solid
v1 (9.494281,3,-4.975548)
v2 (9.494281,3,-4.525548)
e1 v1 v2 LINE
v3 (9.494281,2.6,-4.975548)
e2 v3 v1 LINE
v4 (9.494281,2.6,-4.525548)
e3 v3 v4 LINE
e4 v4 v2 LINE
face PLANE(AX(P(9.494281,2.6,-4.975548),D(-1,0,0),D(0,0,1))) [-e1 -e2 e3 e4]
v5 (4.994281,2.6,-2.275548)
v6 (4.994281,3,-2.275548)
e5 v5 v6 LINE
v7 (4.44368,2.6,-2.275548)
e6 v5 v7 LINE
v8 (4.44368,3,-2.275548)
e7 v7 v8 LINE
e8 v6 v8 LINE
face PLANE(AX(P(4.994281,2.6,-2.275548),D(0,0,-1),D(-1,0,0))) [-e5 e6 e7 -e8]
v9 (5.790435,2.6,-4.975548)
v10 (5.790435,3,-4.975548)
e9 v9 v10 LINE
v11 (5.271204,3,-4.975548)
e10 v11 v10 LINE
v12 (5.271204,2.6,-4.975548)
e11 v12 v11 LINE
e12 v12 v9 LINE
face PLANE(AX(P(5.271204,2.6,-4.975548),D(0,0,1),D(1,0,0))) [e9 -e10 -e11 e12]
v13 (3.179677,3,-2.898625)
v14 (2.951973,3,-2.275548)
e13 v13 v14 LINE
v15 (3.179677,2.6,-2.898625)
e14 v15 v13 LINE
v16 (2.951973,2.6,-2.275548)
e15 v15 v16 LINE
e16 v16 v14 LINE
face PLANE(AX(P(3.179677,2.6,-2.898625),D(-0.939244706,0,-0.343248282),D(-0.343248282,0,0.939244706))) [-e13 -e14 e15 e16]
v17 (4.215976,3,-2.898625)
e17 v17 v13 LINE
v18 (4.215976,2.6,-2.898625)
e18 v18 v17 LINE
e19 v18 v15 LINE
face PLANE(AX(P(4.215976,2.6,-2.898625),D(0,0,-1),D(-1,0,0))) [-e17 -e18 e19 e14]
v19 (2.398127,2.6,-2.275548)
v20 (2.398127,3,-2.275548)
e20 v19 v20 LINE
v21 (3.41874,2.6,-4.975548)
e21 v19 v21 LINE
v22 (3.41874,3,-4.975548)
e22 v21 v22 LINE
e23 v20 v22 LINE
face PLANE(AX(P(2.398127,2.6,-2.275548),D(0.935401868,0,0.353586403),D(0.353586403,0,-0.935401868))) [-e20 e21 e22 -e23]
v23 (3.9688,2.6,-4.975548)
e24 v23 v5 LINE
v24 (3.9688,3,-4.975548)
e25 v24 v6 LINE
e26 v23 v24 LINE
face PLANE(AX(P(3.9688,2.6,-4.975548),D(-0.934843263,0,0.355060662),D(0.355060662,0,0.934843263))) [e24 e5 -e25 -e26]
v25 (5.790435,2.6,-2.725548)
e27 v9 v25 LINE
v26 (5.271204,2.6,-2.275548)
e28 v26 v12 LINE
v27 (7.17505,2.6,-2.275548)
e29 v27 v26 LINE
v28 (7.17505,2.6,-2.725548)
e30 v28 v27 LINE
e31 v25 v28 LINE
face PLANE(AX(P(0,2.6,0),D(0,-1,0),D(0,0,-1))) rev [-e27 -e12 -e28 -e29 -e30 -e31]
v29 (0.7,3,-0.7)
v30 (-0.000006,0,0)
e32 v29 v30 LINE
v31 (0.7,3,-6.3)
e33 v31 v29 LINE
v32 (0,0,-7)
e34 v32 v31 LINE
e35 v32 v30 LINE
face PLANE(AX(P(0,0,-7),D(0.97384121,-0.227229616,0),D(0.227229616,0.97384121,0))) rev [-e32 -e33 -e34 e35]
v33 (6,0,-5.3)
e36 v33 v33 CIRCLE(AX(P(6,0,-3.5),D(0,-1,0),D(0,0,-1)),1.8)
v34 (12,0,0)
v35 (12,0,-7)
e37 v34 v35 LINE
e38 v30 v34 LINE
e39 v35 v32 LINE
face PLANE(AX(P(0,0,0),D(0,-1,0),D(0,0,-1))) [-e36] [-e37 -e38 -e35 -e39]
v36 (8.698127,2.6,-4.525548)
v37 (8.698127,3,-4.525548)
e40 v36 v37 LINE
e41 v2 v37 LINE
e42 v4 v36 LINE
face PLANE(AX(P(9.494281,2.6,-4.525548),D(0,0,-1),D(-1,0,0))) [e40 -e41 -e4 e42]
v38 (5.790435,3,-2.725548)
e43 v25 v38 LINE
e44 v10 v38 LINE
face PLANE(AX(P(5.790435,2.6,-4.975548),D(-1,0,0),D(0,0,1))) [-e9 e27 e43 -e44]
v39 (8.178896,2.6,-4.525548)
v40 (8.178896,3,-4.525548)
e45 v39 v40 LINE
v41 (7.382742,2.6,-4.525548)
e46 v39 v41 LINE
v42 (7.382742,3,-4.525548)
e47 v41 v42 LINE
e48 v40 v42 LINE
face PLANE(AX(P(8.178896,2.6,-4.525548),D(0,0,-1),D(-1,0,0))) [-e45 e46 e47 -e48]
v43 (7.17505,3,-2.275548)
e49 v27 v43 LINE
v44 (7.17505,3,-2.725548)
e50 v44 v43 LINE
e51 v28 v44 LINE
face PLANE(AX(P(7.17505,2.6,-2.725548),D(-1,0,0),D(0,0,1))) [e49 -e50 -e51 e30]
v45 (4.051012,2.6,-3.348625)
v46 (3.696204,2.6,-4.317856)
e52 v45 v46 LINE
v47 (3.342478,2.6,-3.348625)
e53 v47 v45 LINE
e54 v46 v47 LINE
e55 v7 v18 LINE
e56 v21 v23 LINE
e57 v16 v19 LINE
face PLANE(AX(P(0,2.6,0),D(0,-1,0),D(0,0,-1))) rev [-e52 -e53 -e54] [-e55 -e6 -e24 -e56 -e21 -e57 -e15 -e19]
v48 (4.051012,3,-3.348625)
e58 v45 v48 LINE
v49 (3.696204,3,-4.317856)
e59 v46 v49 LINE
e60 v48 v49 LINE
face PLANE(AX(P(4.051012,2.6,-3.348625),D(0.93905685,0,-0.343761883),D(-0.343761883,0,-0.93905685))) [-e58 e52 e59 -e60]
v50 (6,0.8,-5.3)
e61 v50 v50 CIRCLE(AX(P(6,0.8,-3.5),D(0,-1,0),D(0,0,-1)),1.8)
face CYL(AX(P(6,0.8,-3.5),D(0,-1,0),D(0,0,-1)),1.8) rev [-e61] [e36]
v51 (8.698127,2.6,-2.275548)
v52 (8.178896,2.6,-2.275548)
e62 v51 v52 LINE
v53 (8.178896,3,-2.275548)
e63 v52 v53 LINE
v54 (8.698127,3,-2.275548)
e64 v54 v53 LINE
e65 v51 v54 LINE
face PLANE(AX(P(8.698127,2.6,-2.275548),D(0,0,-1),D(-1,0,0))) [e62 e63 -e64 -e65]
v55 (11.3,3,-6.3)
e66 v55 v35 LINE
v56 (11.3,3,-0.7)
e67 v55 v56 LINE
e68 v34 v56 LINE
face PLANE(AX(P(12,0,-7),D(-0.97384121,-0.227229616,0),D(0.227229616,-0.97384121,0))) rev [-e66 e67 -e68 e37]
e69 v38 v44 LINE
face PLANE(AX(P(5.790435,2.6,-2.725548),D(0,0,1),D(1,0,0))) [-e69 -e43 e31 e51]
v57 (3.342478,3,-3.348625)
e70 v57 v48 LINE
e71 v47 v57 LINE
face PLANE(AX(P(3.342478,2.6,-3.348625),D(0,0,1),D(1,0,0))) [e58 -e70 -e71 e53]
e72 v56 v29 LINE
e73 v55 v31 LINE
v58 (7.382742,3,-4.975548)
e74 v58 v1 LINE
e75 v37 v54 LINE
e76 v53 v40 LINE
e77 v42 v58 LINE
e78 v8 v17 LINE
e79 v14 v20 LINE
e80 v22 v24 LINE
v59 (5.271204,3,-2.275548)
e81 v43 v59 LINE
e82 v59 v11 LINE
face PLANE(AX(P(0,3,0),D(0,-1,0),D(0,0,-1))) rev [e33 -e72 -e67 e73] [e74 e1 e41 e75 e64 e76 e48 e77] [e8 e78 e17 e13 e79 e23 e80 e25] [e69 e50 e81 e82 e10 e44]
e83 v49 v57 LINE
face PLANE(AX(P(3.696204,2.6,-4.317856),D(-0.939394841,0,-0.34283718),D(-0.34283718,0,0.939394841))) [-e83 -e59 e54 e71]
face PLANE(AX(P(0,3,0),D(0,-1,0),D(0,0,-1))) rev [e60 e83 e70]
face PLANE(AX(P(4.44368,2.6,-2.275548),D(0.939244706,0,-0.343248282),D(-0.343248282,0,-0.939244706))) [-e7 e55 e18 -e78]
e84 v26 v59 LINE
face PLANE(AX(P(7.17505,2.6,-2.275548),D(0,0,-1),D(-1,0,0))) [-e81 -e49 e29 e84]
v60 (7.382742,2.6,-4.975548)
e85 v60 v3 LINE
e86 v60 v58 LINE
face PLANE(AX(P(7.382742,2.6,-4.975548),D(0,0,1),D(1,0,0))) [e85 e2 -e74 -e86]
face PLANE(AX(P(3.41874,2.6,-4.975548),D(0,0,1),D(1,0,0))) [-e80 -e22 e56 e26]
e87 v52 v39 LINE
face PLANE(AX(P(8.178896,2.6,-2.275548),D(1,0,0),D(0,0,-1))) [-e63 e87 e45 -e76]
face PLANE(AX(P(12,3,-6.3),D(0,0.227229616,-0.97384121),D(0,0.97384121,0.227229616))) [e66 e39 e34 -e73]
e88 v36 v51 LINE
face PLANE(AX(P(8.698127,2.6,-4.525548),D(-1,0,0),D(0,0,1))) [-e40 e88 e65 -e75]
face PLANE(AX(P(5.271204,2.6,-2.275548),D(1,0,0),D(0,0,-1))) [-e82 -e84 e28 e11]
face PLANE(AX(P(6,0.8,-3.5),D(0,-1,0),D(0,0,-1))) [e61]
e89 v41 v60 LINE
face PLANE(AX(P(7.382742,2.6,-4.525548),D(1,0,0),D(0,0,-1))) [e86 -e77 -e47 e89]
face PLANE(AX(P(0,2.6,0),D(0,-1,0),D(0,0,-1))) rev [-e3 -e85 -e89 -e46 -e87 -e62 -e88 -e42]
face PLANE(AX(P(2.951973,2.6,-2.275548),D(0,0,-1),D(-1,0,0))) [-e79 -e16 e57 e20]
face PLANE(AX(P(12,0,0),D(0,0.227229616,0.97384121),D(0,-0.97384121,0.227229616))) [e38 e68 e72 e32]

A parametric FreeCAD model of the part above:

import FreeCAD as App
import Part
import Sketcher


def add_polygon(sketch, points):
    """Adds a closed chain of lines whose ends are joined by coincident constraints."""
    first, n = sketch.GeometryCount, len(points)
    for a, b in zip(points, points[1:] + points[:1]):
        sketch.addGeometry(Part.LineSegment(App.Vector(*a, 0), App.Vector(*b, 0)), False)
    for i in range(n):
        sketch.addConstraint(Sketcher.Constraint("Coincident", first + i, 2, first + (i + 1) % n, 1))

doc = App.newDocument("Part")
params = doc.addObject("Spreadsheet::Sheet", "Params")
for row, (alias, value) in enumerate([
    ("sketch1_width", "12 mm"),
    ("sketch1_height", "7 mm"),
    ("pad1_length", "3 mm"),
    ("sketch2_height", "3 mm"),
    ("sketch2_width", "0.7 mm"),
    ("pocket1_length", "7 mm"),
    ("sketch3_width", "3 mm"),
    ("sketch3_height", "0.7 mm"),
    ("sketch4_diameter", "3.6 mm"),
    ("pocket3_length", "0.8 mm"),
    ("sketch5_height", "2.7 mm"),
    ("sketch5_height2", "0.45 mm"),
    ("pocket4_length", "0.4 mm"),
], start=1):
    params.set(f"A{row}", alias)
    params.set(f"B{row}", "=" + value)
    params.setAlias(f"B{row}", alias)

body = doc.addObject("PartDesign::Body", "Body")

# Sketch on XZ plane
sketch1 = doc.addObject("Sketcher::SketchObject", "Sketch")
body.addObject(sketch1)
sketch1.AttachmentSupport = (doc.XZ_Plane, [""])
sketch1.MapMode = "FlatFace"
add_polygon(sketch1, [(0, -7), (0, 0), (12, 0), (12, -7)])  # lines 0-3
sketch1.addConstraint([
    Sketcher.Constraint("Vertical", 0),
    Sketcher.Constraint("Horizontal", 1),
    Sketcher.Constraint("Vertical", 2),
    Sketcher.Constraint("Horizontal", 3),
    Sketcher.Constraint("Coincident", 0, 2, -1, 1),
    Sketcher.Constraint("DistanceX", 1, 1, 1, 2, 12.0),
    Sketcher.Constraint("DistanceY", 0, 1, 0, 2, 7.0),
])
sketch1.setExpression("Constraints[9]", "Params.sketch1_width")
sketch1.setExpression("Constraints[10]", "Params.sketch1_height")
pad1 = doc.addObject("PartDesign::Pad", "Pad")
body.addObject(pad1)
pad1.Profile = sketch1
pad1.setExpression("Length", "Params.pad1_length")
pad1.Reversed = True

# Sketch on XY plane
sketch2 = doc.addObject("Sketcher::SketchObject", "Sketch001")
body.addObject(sketch2)
sketch2.AttachmentSupport = (doc.XY_Plane, [""])
sketch2.MapMode = "FlatFace"
add_polygon(sketch2, [(0, 0), (0.7, 3), (0, 3)])  # lines 0-2
add_polygon(sketch2, [(11.3, 3), (12, 0), (12, 3)])  # lines 3-5
sketch2.addConstraint([
    Sketcher.Constraint("Horizontal", 1),
    Sketcher.Constraint("Vertical", 2),
    Sketcher.Constraint("Vertical", 4),
    Sketcher.Constraint("Horizontal", 5),
    Sketcher.Constraint("Coincident", 2, 2, -1, 1),
    Sketcher.Constraint("PointOnObject", 3, 2, -1),
    Sketcher.Constraint("Horizontal", 1, 2, 4, 2),
    Sketcher.Constraint("Equal", 1, 5),
    Sketcher.Constraint("DistanceY", 2, 2, 2, 1, 3.0),
    Sketcher.Constraint("DistanceX", 1, 2, 1, 1, 0.7),
    Sketcher.Constraint("DistanceX", -1, 1, 3, 2, 12.0),
])
sketch2.setExpression("Constraints[14]", "Params.sketch2_height")
sketch2.setExpression("Constraints[15]", "Params.sketch2_width")
pocket1 = doc.addObject("PartDesign::Pocket", "Pocket")
body.addObject(pocket1)
pocket1.Profile = sketch2
pocket1.setExpression("Length", "Params.pocket1_length")

# Sketch on YZ plane
sketch3 = doc.addObject("Sketcher::SketchObject", "Sketch002")
body.addObject(sketch3)
sketch3.AttachmentSupport = (doc.YZ_Plane, [""])
sketch3.MapMode = "FlatFace"
add_polygon(sketch3, [(0, 0), (3, -0.7), (3, 0)])  # lines 0-2
add_polygon(sketch3, [(3, -7), (3, -6.3), (0, -7)])  # lines 3-5
sketch3.addConstraint([
    Sketcher.Constraint("Vertical", 1),
    Sketcher.Constraint("Horizontal", 2),
    Sketcher.Constraint("Vertical", 3),
    Sketcher.Constraint("Horizontal", 5),
    Sketcher.Constraint("Coincident", 2, 2, -1, 1),
    Sketcher.Constraint("PointOnObject", 4, 2, -2),
    Sketcher.Constraint("Vertical", 1, 2, 3, 2),
    Sketcher.Constraint("Equal", 1, 3),
    Sketcher.Constraint("DistanceX", 2, 2, 2, 1, 3.0),
    Sketcher.Constraint("DistanceY", 1, 1, 1, 2, 0.7),
    Sketcher.Constraint("DistanceY", 4, 2, -1, 1, 7.0),
])
sketch3.setExpression("Constraints[14]", "Params.sketch3_width")
sketch3.setExpression("Constraints[15]", "Params.sketch3_height")
pocket2 = doc.addObject("PartDesign::Pocket", "Pocket001")
body.addObject(pocket2)
pocket2.Profile = sketch3
pocket2.Type = "ThroughAll"
pocket2.Midplane = True

# Sketch on XZ plane
sketch4 = doc.addObject("Sketcher::SketchObject", "Sketch003")
body.addObject(sketch4)
sketch4.AttachmentSupport = (doc.XZ_Plane, [""])
sketch4.MapMode = "FlatFace"
sketch4.addGeometry(Part.Circle(App.Vector(6, -3.5, 0), App.Vector(0, 0, 1), 1.8), False)
sketch4.addConstraint([
    Sketcher.Constraint("Diameter", 0, 3.6),
    Sketcher.Constraint("DistanceX", -1, 1, 0, 3, 6.0),
    Sketcher.Constraint("DistanceY", 0, 3, -1, 1, 3.5),
])
sketch4.setExpression("Constraints[0]", "Params.sketch4_diameter")
pocket3 = doc.addObject("PartDesign::Pocket", "Pocket002")
body.addObject(pocket3)
pocket3.Profile = sketch4
pocket3.setExpression("Length", "Params.pocket3_length")

# Sketch on XZ plane
sketch5 = doc.addObject("Sketcher::SketchObject", "Sketch004")
body.addObject(sketch5)
sketch5.AttachmentSupport = (doc.XZ_Plane, [""])
sketch5.MapMode = "FlatFace"
sketch5.AttachmentOffset = App.Placement(App.Vector(0, 0, -3), App.Rotation())
add_polygon(sketch5, [(4.44368, -2.275548), (4.994281, -2.275548), (3.9688, -4.975548), (3.41874, -4.975548), (2.398127, -2.275548), (2.951973, -2.275548), (3.179677, -2.898625), (4.215976, -2.898625)])  # lines 0-7
add_polygon(sketch5, [(4.051012, -3.348625), (3.342478, -3.348625), (3.696204, -4.317856)])  # lines 8-10
add_polygon(sketch5, [(5.271204, -4.975548), (5.271204, -2.275548), (7.17505, -2.275548), (7.17505, -2.725548), (5.790435, -2.725548), (5.790435, -4.975548)])  # lines 11-16
add_polygon(sketch5, [(8.178896, -4.525548), (8.178896, -2.275548), (8.698127, -2.275548), (8.698127, -4.525548), (9.494281, -4.525548), (9.494281, -4.975548), (7.382742, -4.975548), (7.382742, -4.525548)])  # lines 17-24
sketch5.addConstraint([
    Sketcher.Constraint("Horizontal", 0),
    Sketcher.Constraint("Horizontal", 2),
    Sketcher.Constraint("Horizontal", 4),
    Sketcher.Constraint("Horizontal", 6),
    Sketcher.Constraint("Horizontal", 8),
    Sketcher.Constraint("Vertical", 11),
    Sketcher.Constraint("Horizontal", 12),
    Sketcher.Constraint("Vertical", 13),
    Sketcher.Constraint("Horizontal", 14),
    Sketcher.Constraint("Vertical", 15),
    Sketcher.Constraint("Horizontal", 16),
    Sketcher.Constraint("Vertical", 17),
    Sketcher.Constraint("Horizontal", 18),
    Sketcher.Constraint("Vertical", 19),
    Sketcher.Constraint("Horizontal", 20),
    Sketcher.Constraint("Vertical", 21),
    Sketcher.Constraint("Horizontal", 22),
    Sketcher.Constraint("Vertical", 23),
    Sketcher.Constraint("Horizontal", 24),
    Sketcher.Constraint("Horizontal", 0, 2, 3, 2),
    Sketcher.Constraint("Horizontal", 7, 2, 11, 2),
    Sketcher.Constraint("Horizontal", 2, 2, 15, 2),
    Sketcher.Constraint("Horizontal", 12, 2, 17, 2),
    Sketcher.Constraint("Horizontal", 16, 2, 21, 2),
    Sketcher.Constraint("Horizontal", 20, 2, 23, 2),
    Sketcher.Constraint("Equal", 16, 18),
    Sketcher.Constraint("Equal", 20, 24),
    Sketcher.Constraint("Equal", 15, 17),
    Sketcher.Constraint("Equal", 5, 7),
    Sketcher.Constraint("DistanceY", 11, 1, 11, 2, 2.7),
    Sketcher.Constraint("DistanceY", 13, 2, 13, 1, 0.45),
    Sketcher.Constraint("DistanceY", 8, 2, 5, 2, 0.45),
    Sketcher.Constraint("DistanceX", 0, 1, 0, 2, 0.550601),
    Sketcher.Constraint("DistanceX", 6, 1, 6, 2, 1.036298),
    Sketcher.Constraint("DistanceX", 9, 2, 16, 2, 1.575),
    Sketcher.Constraint("DistanceX", 2, 2, 2, 1, 0.55006),
    Sketcher.Constraint("DistanceX", 16, 2, 16, 1, 0.519231),
    Sketcher.Constraint("DistanceX", 22, 2, 22, 1, 2.111538),
    Sketcher.Constraint("DistanceX", -1, 1, 1, 2, 3.9688),
    Sketcher.Constraint("DistanceX", 5, 2, 8, 2, 0.1628),
    Sketcher.Constraint("DistanceX", 8, 2, 7, 2, 1.101202),
    Sketcher.Constraint("Distance", 3, 2.88646),
    Sketcher.Constraint("Distance", 5, 0.663381),
    Sketcher.Constraint("Distance", 9, 1.031761),
    Sketcher.Constraint("DistanceX", 4, 1, 4, 2, 0.553846),
    Sketcher.Constraint("DistanceX", 8, 2, 8, 1, 0.708534),
    Sketcher.Constraint("DistanceX", 12, 1, 12, 2, 1.903846),
    Sketcher.Constraint("DistanceY", 0, 2, -1, 1, 2.275548),
    Sketcher.Constraint("DistanceX", -1, 1, 12, 2, 7.17505),
    Sketcher.Constraint("DistanceX", -1, 1, 20, 2, 9.494281),
])
sketch5.setExpression("Constraints[54]", "Params.sketch5_height")
sketch5.setExpression("Constraints[55]", "Params.sketch5_height2")
pocket4 = doc.addObject("PartDesign::Pocket", "Pocket003")
body.addObject(pocket4)
pocket4.Profile = sketch5
pocket4.setExpression("Length", "Params.pocket4_length")
pocket4.Reversed = True

doc.recompute()
